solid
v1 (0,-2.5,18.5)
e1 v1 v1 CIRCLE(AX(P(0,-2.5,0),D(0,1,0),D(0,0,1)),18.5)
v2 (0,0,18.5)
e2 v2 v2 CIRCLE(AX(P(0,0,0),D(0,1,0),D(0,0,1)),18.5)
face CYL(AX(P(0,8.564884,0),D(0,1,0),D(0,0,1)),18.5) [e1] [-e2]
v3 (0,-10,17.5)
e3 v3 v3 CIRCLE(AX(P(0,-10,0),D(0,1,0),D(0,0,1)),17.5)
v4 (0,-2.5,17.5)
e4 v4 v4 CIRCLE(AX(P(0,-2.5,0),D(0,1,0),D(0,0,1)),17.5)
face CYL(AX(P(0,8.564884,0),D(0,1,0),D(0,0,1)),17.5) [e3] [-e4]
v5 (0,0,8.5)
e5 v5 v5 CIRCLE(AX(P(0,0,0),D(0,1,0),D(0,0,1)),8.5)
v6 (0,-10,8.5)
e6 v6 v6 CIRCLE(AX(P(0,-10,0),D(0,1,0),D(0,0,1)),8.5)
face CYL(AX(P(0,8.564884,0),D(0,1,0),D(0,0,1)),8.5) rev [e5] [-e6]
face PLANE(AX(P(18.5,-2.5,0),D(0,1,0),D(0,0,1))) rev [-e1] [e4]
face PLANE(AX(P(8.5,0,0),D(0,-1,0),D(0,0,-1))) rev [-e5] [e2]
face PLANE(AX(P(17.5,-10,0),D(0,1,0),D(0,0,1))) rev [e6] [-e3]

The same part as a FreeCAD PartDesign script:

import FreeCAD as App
import Part
import Sketcher

V = App.Vector
Q = App.Units.Quantity


def add_polygon(sketch, points):
    """Adds a closed chain of lines whose ends are joined by coincident constraints."""
    first, n = sketch.GeometryCount, len(points)
    for a, b in zip(points, points[1:] + points[:1]):
        sketch.addGeometry(Part.LineSegment(App.Vector(*a, 0), App.Vector(*b, 0)), False)
    for i in range(n):
        sketch.addConstraint(Sketcher.Constraint("Coincident", first + i, 2, first + (i + 1) % n, 1))

doc = App.newDocument("Part")
body = doc.addObject("PartDesign::Body", "Body")

sketch1 = body.newObject("Sketcher::SketchObject", "Sketch")
sketch1.AttachmentSupport = (doc.getObject("XY_Plane"), [""])
sketch1.MapMode = "FlatFace"
add_polygon(sketch1, [(18.5, 0), (8.5, 0), (8.5, -10), (17.5, -10), (17.5, -2.5), (18.5, -2.5)])
sketch1.addConstraint([
    Sketcher.Constraint("Horizontal", 0),
    Sketcher.Constraint("Vertical", 1),
    Sketcher.Constraint("Horizontal", 2),
    Sketcher.Constraint("Vertical", 3),
    Sketcher.Constraint("Horizontal", 4),
    Sketcher.Constraint("Vertical", 5),
    Sketcher.Constraint("PointOnObject", 0, 2, -1),
    Sketcher.Constraint("Equal", 0, 1),
    Sketcher.Constraint("DistanceX", 0, 2, 0, 1, Q("10 mm")),
    Sketcher.Constraint("DistanceX", 2, 1, 2, 2, Q("9 mm")),
    Sketcher.Constraint("DistanceY", 3, 1, 3, 2, Q("7.5 mm")),
    Sketcher.Constraint("DistanceX", -1, 1, 0, 2, Q("8.5 mm")),
])
revolution = body.newObject("PartDesign::Revolution", "Revolution")
revolution.Profile = sketch1
revolution.ReferenceAxis = (sketch1, ["V_Axis"])
revolution.Angle = 360

doc.recompute()
